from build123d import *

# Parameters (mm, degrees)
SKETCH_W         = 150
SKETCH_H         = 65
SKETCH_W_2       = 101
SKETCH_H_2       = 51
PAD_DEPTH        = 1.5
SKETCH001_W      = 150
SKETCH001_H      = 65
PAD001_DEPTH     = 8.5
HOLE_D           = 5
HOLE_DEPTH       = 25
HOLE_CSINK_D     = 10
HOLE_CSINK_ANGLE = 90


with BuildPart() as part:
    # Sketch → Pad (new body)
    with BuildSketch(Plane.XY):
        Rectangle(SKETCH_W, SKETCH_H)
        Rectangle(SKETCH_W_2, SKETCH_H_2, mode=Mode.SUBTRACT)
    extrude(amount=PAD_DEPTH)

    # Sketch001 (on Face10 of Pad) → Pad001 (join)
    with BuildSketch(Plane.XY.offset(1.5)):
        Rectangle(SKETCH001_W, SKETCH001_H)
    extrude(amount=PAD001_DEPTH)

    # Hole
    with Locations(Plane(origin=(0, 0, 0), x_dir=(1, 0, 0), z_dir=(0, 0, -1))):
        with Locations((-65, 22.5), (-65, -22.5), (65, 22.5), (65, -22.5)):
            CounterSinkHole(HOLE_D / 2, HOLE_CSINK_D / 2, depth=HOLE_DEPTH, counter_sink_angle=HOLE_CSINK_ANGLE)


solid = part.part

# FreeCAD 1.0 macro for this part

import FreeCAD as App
import Part
import Sketcher
from FreeCAD import Vector


def add_polygon(sketch, points):
    """Adds a closed chain of lines whose ends are joined by coincident constraints."""
    first, n = sketch.GeometryCount, len(points)
    for a, b in zip(points, points[1:] + points[:1]):
        sketch.addGeometry(Part.LineSegment(App.Vector(*a, 0), App.Vector(*b, 0)), False)
    for i in range(n):
        sketch.addConstraint(Sketcher.Constraint("Coincident", first + i, 2, first + (i + 1) % n, 1))

doc = App.newDocument("Part")
body = doc.addObject("PartDesign::Body", "Body")

sketch1 = body.newObject("Sketcher::SketchObject", "Sketch")
sketch1.AttachmentSupport = (doc.getObject("XY_Plane"), [""])
sketch1.MapMode = "FlatFace"
add_polygon(sketch1, [(-75, 32), (-75, -32), (75, -32), (75, 32)])
add_polygon(sketch1, [(50, -26), (-50, -26), (-50, 26), (50, 26)])
sketch1.addConstraint(Sketcher.Constraint("Vertical", 0))
sketch1.addConstraint(Sketcher.Constraint("Horizontal", 1))
sketch1.addConstraint(Sketcher.Constraint("Vertical", 2))
sketch1.addConstraint(Sketcher.Constraint("Horizontal", 3))
sketch1.addConstraint(Sketcher.Constraint("Horizontal", 4))
sketch1.addConstraint(Sketcher.Constraint("Vertical", 5))
sketch1.addConstraint(Sketcher.Constraint("Horizontal", 6))
sketch1.addConstraint(Sketcher.Constraint("Vertical", 7))
sketch1.addConstraint(Sketcher.Constraint("Symmetric", 0, 2, 2, 2, -1, 1))
sketch1.addConstraint(Sketcher.Constraint("Symmetric", 4, 2, 6, 2, -1, 1))
sketch1.addConstraint(Sketcher.Constraint("DistanceX", 1, 1, 1, 2, 150.0))
sketch1.addConstraint(Sketcher.Constraint("DistanceX", 4, 2, 4, 1, 101.0))
sketch1.addConstraint(Sketcher.Constraint("DistanceY", 0, 2, 0, 1, 65.0))
sketch1.addConstraint(Sketcher.Constraint("DistanceY", 5, 1, 5, 2, 51.0))
pad1 = body.newObject("PartDesign::Pad", "Pad")
pad1.Profile = sketch1
pad1.Length = 1.5

sketch2 = body.newObject("Sketcher::SketchObject", "Sketch001")
sketch2.AttachmentSupport = (doc.getObject("XY_Plane"), [""])
sketch2.MapMode = "FlatFace"
sketch2.AttachmentOffset = App.Placement(Vector(0, 0, 1.5), App.Rotation())
add_polygon(sketch2, [(-75, 32), (-75, -32), (75, -32), (75, 32)])
sketch2.addConstraint(Sketcher.Constraint("Vertical", 0))
sketch2.addConstraint(Sketcher.Constraint("Horizontal", 1))
sketch2.addConstraint(Sketcher.Constraint("Vertical", 2))
sketch2.addConstraint(Sketcher.Constraint("Horizontal", 3))
sketch2.addConstraint(Sketcher.Constraint("Symmetric", 0, 2, 2, 2, -1, 1))
sketch2.addConstraint(Sketcher.Constraint("DistanceX", 1, 1, 1, 2, 150.0))
sketch2.addConstraint(Sketcher.Constraint("DistanceY", 0, 2, 0, 1, 65.0))
pad2 = body.newObject("PartDesign::Pad", "Pad001")
pad2.Profile = sketch2
pad2.Length = 8.5

sketch3 = body.newObject("Sketcher::SketchObject", "Sketch002")
sketch3.AttachmentSupport = (doc.getObject("XY_Plane"), [""])
sketch3.MapMode = "FlatFace"
sketch3.addGeometry(Part.Circle(Vector(-65, -22.5, 0), Vector(0, 0, 1), 2.5), False)
sketch3.addGeometry(Part.Circle(Vector(-65, 22.5, 0), Vector(0, 0, 1), 2.5), False)
sketch3.addGeometry(Part.Circle(Vector(65, -22.5, 0), Vector(0, 0, 1), 2.5), False)
sketch3.addGeometry(Part.Circle(Vector(65, 22.5, 0), Vector(0, 0, 1), 2.5), False)
sketch3.addConstraint(Sketcher.Constraint("Equal", 0, 1))
sketch3.addConstraint(Sketcher.Constraint("Equal", 1, 2))
sketch3.addConstraint(Sketcher.Constraint("Equal", 2, 3))
sketch3.addConstraint(Sketcher.Constraint("Symmetric", 1, 3, 2, 3, -1, 1))
sketch3.addConstraint(Sketcher.Constraint("Symmetric", 0, 3, 3, 3, -1, 1))
sketch3.addConstraint(Sketcher.Constraint("Symmetric", 0, 3, 2, 3, -2))
sketch3.addConstraint(Sketcher.Constraint("Diameter", 0, 5.0))
sketch3.addConstraint(Sketcher.Constraint("DistanceX", 0, 3, -1, 1, 65.0))
sketch3.addConstraint(Sketcher.Constraint("DistanceY", 0, 3, 1, 3, 45.0))
doc.recompute()
hole = body.newObject("PartDesign::Hole", "Hole")
hole.Profile = sketch3
hole.ThreadType = "None"
hole.Diameter = 5
hole.DepthType = "Dimension"
hole.Depth = 25
hole.DrillPoint = "Flat"
hole.HoleCutType = "Countersink"
hole.HoleCutDiameter = 10
hole.HoleCutCountersinkAngle = 90
hole.Reversed = True

doc.recompute()
